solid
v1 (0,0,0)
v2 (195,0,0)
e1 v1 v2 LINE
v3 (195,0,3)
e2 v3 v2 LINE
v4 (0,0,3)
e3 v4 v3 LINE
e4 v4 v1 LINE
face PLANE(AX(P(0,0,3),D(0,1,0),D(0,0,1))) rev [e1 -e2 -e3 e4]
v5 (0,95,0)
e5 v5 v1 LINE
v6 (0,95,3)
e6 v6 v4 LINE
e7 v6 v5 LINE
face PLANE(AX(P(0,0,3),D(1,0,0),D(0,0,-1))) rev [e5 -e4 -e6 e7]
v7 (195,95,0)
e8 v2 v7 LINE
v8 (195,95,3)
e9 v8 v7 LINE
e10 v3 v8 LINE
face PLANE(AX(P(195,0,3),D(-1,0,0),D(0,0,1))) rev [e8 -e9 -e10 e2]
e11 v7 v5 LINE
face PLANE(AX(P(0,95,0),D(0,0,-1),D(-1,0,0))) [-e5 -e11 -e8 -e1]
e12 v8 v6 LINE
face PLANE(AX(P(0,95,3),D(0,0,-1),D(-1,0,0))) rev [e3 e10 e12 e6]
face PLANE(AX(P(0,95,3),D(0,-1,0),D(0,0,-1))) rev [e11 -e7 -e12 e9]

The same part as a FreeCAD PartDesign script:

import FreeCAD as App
import Part
import Sketcher

V = App.Vector


def add_polygon(sketch, points):
    """Adds a closed chain of lines whose ends are joined by coincident constraints."""
    first, n = sketch.GeometryCount, len(points)
    for a, b in zip(points, points[1:] + points[:1]):
        sketch.addGeometry(Part.LineSegment(App.Vector(*a, 0), App.Vector(*b, 0)), False)
    for i in range(n):
        sketch.addConstraint(Sketcher.Constraint("Coincident", first + i, 2, first + (i + 1) % n, 1))

doc = App.newDocument("Part")
body = doc.addObject("PartDesign::Body", "Body")

# Sketch on XY plane
sketch1 = body.newObject("Sketcher::SketchObject", "Sketch")
sketch1.AttachmentSupport = (doc.getObject("XY_Plane"), [""])
sketch1.MapMode = "FlatFace"
add_polygon(sketch1, [(0, 95), (0, 0), (195, 0), (195, 95)])  # lines 0-3
sketch1.addConstraint(Sketcher.Constraint("Vertical", 0))
sketch1.addConstraint(Sketcher.Constraint("Horizontal", 1))
sketch1.addConstraint(Sketcher.Constraint("Vertical", 2))
sketch1.addConstraint(Sketcher.Constraint("Horizontal", 3))
sketch1.addConstraint(Sketcher.Constraint("Coincident", 0, 2, -1, 1))
sketch1.addConstraint(Sketcher.Constraint("DistanceX", 1, 1, 1, 2, 195.0))
sketch1.addConstraint(Sketcher.Constraint("DistanceY", 0, 2, 0, 1, 95.0))
pad1 = body.newObject("PartDesign::Pad", "Pad")
pad1.Profile = sketch1
pad1.Length = 3

doc.recompute()
